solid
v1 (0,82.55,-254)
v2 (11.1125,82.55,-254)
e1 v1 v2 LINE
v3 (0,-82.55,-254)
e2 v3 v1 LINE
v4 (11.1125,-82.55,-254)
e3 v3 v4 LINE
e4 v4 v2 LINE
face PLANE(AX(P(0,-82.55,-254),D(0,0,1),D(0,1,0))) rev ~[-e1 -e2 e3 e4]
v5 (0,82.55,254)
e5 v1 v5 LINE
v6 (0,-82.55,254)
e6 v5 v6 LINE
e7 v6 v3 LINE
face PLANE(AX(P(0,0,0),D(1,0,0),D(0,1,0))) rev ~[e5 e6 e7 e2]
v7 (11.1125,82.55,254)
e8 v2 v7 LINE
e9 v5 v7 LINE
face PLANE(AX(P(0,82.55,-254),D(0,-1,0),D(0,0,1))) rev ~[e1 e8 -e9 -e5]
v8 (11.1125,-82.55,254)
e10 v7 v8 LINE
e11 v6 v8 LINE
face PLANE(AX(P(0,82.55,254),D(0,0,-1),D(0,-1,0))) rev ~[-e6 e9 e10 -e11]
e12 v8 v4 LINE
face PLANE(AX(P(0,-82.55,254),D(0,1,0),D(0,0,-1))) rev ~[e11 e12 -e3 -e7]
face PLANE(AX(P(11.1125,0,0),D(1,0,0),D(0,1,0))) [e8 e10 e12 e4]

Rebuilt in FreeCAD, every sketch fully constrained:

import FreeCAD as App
import Part
import Sketcher

V = App.Vector
Q = App.Units.Quantity

doc = App.newDocument("Part")
body = doc.addObject("PartDesign::Body", "Body")

sketch1 = body.newObject("Sketcher::SketchObject", "Sketch")
sketch1.AttachmentSupport = (doc.getObject("YZ_Plane"), [""])
sketch1.MapMode = "FlatFace"
sketch1.addGeometry([
    Part.LineSegment(V(83, 254, 0), V(-83, 254, 0)),
    Part.LineSegment(V(-83, 254, 0), V(-83, -254, 0)),
    Part.LineSegment(V(-83, -254, 0), V(83, -254, 0)),
    Part.LineSegment(V(83, -254, 0), V(83, 254, 0)),
], False)
sketch1.addConstraint([
    Sketcher.Constraint("Coincident", 0, 2, 1, 1),
    Sketcher.Constraint("Coincident", 1, 2, 2, 1),
    Sketcher.Constraint("Coincident", 2, 2, 3, 1),
    Sketcher.Constraint("Coincident", 3, 2, 0, 1),
    Sketcher.Constraint("Horizontal", 0),
    Sketcher.Constraint("Vertical", 1),
    Sketcher.Constraint("Horizontal", 2),
    Sketcher.Constraint("Vertical", 3),
    Sketcher.Constraint("Symmetric", 0, 2, 2, 2, -1, 1),
    Sketcher.Constraint("DistanceY", 1, 2, 1, 1, Q("20 in")),
    Sketcher.Constraint("DistanceX", 0, 2, 0, 1, Q("6.5 in")),
])
pad1 = body.newObject("PartDesign::Pad", "Pad")
pad1.Profile = sketch1
pad1.Length = Q("0.4375 in")

doc.recompute()
